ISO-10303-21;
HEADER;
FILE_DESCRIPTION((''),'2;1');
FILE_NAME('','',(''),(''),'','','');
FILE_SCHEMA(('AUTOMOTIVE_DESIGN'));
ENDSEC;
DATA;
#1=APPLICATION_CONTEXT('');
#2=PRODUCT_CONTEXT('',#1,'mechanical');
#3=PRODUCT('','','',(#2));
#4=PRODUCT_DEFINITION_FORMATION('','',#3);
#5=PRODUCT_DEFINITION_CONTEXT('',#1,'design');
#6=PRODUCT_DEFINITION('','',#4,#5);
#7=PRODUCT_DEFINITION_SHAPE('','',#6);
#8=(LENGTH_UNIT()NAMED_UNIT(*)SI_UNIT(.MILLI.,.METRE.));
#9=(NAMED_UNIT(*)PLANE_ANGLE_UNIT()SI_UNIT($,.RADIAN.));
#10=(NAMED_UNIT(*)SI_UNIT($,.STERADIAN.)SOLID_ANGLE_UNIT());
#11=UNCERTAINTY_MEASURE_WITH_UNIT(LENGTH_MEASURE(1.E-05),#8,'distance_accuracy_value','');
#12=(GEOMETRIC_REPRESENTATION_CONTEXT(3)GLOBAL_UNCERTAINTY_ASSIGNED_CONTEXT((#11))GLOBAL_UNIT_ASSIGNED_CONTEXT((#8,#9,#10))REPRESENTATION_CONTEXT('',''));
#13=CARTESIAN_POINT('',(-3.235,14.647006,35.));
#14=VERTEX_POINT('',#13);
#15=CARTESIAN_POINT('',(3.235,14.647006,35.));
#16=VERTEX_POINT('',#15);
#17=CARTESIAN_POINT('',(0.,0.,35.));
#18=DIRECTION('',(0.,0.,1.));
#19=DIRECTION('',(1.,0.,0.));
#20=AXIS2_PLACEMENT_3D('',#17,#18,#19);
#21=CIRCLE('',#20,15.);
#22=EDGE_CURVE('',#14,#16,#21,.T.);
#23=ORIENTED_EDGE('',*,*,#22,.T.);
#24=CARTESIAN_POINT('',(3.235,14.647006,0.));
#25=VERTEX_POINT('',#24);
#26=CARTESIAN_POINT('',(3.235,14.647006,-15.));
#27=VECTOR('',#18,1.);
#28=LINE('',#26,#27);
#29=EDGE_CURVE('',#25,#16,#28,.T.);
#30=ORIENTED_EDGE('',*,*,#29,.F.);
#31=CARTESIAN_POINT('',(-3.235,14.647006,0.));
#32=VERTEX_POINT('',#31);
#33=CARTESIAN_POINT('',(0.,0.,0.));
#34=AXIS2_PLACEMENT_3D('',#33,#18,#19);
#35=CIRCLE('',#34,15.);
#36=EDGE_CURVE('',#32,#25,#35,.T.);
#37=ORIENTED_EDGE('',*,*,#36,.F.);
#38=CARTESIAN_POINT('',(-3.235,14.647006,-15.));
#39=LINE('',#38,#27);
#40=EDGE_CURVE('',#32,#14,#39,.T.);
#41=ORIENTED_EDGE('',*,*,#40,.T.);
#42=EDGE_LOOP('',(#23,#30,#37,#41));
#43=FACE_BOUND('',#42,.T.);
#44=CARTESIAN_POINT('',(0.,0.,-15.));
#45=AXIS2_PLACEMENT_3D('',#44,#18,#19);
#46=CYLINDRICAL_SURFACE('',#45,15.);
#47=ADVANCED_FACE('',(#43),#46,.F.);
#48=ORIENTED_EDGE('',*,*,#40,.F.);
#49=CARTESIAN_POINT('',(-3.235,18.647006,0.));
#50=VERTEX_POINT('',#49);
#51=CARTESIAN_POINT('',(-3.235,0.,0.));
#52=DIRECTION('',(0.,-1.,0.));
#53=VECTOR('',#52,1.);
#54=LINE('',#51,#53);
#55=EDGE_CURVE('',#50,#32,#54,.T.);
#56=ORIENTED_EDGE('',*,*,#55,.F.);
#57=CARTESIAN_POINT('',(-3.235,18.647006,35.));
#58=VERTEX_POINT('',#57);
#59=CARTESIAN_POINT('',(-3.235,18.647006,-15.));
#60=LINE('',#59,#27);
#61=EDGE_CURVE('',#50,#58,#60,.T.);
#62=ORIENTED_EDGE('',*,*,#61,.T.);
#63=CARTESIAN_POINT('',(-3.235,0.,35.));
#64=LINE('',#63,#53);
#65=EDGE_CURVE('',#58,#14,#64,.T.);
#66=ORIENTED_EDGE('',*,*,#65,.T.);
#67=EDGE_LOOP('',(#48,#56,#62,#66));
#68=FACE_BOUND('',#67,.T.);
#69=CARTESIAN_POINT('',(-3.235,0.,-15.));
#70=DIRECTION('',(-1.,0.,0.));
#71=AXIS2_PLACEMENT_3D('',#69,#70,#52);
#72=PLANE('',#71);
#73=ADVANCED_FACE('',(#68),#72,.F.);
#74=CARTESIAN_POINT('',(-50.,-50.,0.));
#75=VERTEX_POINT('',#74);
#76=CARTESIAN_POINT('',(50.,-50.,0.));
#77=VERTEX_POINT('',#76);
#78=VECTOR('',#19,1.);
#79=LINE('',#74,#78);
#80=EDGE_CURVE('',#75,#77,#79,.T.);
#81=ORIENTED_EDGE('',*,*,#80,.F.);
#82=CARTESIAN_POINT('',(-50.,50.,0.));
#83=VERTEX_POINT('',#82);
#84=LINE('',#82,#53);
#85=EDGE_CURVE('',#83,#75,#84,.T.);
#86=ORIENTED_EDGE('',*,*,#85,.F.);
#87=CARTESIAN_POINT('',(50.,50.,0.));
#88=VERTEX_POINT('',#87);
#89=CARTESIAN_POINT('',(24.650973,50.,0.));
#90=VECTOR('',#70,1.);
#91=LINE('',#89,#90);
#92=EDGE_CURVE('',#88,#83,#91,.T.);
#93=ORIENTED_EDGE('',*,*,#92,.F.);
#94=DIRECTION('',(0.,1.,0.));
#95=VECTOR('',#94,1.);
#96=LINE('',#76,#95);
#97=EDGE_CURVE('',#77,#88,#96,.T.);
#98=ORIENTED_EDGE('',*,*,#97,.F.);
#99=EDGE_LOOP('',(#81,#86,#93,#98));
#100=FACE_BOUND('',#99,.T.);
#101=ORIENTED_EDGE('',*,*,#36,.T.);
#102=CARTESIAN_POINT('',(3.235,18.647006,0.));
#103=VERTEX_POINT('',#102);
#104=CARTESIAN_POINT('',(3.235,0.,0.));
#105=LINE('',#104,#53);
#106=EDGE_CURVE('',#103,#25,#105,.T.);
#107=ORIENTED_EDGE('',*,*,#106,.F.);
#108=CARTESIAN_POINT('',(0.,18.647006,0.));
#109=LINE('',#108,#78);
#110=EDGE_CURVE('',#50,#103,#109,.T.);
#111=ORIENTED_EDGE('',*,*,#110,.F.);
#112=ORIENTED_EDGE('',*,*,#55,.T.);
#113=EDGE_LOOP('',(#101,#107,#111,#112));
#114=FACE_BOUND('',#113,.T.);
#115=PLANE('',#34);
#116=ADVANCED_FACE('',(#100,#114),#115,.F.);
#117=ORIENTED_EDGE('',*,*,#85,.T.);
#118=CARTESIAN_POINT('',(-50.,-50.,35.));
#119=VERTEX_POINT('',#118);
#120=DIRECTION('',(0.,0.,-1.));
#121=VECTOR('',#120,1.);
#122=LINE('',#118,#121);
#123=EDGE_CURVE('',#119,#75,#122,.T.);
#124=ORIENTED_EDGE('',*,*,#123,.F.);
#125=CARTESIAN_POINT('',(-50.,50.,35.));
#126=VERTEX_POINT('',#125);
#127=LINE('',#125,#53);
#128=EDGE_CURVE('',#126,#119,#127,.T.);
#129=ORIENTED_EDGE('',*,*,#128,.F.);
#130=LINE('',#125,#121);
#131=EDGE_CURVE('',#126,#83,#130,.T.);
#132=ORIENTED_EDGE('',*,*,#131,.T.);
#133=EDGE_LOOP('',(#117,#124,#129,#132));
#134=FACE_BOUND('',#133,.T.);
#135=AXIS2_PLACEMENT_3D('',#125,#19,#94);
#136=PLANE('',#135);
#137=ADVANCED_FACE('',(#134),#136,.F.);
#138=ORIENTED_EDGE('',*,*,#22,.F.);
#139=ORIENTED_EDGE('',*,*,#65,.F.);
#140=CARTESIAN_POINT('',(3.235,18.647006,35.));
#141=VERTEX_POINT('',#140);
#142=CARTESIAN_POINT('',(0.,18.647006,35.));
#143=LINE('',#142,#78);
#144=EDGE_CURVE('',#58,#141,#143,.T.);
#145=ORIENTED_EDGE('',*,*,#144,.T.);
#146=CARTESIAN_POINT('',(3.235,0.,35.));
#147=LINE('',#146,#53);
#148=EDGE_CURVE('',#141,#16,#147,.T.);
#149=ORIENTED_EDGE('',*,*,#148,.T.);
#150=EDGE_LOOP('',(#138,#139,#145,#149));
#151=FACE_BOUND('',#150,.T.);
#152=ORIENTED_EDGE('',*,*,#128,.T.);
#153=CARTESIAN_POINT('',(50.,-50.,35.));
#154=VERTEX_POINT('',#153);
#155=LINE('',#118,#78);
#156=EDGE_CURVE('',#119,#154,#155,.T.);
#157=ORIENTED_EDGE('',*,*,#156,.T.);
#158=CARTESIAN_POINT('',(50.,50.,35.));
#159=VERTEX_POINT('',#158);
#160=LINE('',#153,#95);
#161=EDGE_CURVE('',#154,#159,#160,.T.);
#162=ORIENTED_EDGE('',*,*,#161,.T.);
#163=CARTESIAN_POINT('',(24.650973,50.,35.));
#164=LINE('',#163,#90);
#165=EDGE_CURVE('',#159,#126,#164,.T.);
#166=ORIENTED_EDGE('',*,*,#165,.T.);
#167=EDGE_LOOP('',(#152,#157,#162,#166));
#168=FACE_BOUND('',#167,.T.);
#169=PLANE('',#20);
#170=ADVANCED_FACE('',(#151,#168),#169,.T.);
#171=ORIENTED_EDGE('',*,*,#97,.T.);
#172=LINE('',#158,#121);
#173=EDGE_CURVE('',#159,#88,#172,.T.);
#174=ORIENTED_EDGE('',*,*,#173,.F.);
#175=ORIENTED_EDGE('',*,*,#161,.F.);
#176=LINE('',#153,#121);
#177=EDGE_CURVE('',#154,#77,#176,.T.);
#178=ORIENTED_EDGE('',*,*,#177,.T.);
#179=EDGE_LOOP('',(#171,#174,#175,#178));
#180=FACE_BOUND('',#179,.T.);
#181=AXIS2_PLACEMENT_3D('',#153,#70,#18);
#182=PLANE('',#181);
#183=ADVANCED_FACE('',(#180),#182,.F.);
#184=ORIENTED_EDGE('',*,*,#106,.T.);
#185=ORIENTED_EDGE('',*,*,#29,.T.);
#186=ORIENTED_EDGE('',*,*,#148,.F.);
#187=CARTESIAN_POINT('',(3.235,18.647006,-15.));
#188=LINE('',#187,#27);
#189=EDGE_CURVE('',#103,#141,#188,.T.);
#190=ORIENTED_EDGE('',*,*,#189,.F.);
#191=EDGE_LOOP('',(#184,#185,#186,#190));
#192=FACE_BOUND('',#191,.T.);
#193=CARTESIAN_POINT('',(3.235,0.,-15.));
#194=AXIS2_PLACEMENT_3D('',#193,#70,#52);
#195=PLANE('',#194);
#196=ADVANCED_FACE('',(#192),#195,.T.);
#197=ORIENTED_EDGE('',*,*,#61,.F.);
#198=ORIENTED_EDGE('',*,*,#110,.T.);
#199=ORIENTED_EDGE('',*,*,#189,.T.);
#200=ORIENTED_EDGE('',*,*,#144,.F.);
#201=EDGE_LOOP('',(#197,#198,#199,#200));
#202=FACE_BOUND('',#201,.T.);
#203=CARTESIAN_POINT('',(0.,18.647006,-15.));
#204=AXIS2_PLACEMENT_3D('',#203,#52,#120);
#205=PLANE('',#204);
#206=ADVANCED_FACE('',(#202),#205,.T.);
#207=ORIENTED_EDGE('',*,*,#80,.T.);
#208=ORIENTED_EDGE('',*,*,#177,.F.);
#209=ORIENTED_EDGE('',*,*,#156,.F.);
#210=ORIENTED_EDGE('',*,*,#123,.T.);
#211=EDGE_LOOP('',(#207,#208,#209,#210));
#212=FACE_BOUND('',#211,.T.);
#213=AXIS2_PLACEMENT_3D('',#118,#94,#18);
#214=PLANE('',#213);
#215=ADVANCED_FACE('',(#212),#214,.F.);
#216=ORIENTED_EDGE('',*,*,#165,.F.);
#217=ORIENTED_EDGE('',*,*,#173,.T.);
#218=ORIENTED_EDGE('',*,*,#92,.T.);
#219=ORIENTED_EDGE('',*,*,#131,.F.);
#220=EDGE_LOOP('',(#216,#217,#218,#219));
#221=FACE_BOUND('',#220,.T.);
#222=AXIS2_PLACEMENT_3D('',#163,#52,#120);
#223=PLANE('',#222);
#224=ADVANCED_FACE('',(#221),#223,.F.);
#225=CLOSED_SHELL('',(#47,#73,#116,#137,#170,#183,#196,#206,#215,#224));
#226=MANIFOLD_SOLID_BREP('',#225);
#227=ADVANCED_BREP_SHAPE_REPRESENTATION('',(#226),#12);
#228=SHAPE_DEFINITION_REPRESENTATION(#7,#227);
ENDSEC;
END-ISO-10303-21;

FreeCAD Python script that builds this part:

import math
import FreeCAD as App
import Part
import Sketcher

V = App.Vector
Q = App.Units.Quantity


def add_polygon(sketch, points):
    """Adds a closed chain of lines whose ends are joined by coincident constraints."""
    first, n = sketch.GeometryCount, len(points)
    for a, b in zip(points, points[1:] + points[:1]):
        sketch.addGeometry(Part.LineSegment(App.Vector(*a, 0), App.Vector(*b, 0)), False)
    for i in range(n):
        sketch.addConstraint(Sketcher.Constraint("Coincident", first + i, 2, first + (i + 1) % n, 1))

doc = App.newDocument("Part")
body = doc.addObject("PartDesign::Body", "Body")

sketch1 = body.newObject("Sketcher::SketchObject", "Sketch")
sketch1.AttachmentSupport = (doc.getObject("XY_Plane"), [""])
sketch1.MapMode = "FlatFace"
add_polygon(sketch1, [(50, 50), (-50, 50), (-50, -50), (50, -50)])
sketch1.addConstraint(Sketcher.Constraint("Horizontal", 0))
sketch1.addConstraint(Sketcher.Constraint("Vertical", 1))
sketch1.addConstraint(Sketcher.Constraint("Horizontal", 2))
sketch1.addConstraint(Sketcher.Constraint("Vertical", 3))
sketch1.addConstraint(Sketcher.Constraint("Symmetric", 0, 2, 2, 2, -1, 1))
sketch1.addConstraint(Sketcher.Constraint("Equal", 2, 1))
sketch1.addConstraint(Sketcher.Constraint("DistanceX", 0, 2, 0, 1, Q("100 mm")))
pad1 = body.newObject("PartDesign::Pad", "Pad")
pad1.Profile = sketch1
pad1.Length = 35

sketch2 = body.newObject("Sketcher::SketchObject", "Sketch001")
sketch2.AttachmentSupport = (doc.getObject("XY_Plane"), [""])
sketch2.MapMode = "FlatFace"
sketch2.AttachmentOffset = App.Placement(V(0, 0, 35), App.Rotation())
sketch2.addGeometry(Part.LineSegment(V(3.235, 14.647006, 0), V(3.235, 18.647006, 0)), False)
sketch2.addGeometry(Part.LineSegment(V(3.235, 18.647006, 0), V(-3.235, 18.647006, 0)), False)
sketch2.addGeometry(Part.LineSegment(V(-3.235, 18.647006, 0), V(-3.235, 14.647006, 0)), False)
sketch2.addGeometry(Part.ArcOfCircle(Part.Circle(V(0, 0, 0), V(0, 0, 1), 15), math.radians(102.454642), math.radians(437.545358)), False)
sketch2.addConstraint(Sketcher.Constraint("Coincident", 0, 2, 1, 1))
sketch2.addConstraint(Sketcher.Constraint("Coincident", 1, 2, 2, 1))
sketch2.addConstraint(Sketcher.Constraint("Coincident", 2, 2, 3, 1))
sketch2.addConstraint(Sketcher.Constraint("Coincident", 3, 2, 0, 1))
sketch2.addConstraint(Sketcher.Constraint("Vertical", 0))
sketch2.addConstraint(Sketcher.Constraint("Horizontal", 1))
sketch2.addConstraint(Sketcher.Constraint("Vertical", 2))
sketch2.addConstraint(Sketcher.Constraint("Coincident", 3, 3, -1, 1))
sketch2.addConstraint(Sketcher.Constraint("Horizontal", 2, 2, 3, 2))
sketch2.addConstraint(Sketcher.Constraint("Radius", 3, Q("15 mm")))
sketch2.addConstraint(Sketcher.Constraint("DistanceY", 0, 1, 0, 2, Q("4 mm")))
sketch2.addConstraint(Sketcher.Constraint("DistanceX", 1, 2, 1, 1, Q("6.47 mm")))
pocket1 = body.newObject("PartDesign::Pocket", "Pocket")
pocket1.Profile = sketch2
pocket1.Length = 50

doc.recompute()
